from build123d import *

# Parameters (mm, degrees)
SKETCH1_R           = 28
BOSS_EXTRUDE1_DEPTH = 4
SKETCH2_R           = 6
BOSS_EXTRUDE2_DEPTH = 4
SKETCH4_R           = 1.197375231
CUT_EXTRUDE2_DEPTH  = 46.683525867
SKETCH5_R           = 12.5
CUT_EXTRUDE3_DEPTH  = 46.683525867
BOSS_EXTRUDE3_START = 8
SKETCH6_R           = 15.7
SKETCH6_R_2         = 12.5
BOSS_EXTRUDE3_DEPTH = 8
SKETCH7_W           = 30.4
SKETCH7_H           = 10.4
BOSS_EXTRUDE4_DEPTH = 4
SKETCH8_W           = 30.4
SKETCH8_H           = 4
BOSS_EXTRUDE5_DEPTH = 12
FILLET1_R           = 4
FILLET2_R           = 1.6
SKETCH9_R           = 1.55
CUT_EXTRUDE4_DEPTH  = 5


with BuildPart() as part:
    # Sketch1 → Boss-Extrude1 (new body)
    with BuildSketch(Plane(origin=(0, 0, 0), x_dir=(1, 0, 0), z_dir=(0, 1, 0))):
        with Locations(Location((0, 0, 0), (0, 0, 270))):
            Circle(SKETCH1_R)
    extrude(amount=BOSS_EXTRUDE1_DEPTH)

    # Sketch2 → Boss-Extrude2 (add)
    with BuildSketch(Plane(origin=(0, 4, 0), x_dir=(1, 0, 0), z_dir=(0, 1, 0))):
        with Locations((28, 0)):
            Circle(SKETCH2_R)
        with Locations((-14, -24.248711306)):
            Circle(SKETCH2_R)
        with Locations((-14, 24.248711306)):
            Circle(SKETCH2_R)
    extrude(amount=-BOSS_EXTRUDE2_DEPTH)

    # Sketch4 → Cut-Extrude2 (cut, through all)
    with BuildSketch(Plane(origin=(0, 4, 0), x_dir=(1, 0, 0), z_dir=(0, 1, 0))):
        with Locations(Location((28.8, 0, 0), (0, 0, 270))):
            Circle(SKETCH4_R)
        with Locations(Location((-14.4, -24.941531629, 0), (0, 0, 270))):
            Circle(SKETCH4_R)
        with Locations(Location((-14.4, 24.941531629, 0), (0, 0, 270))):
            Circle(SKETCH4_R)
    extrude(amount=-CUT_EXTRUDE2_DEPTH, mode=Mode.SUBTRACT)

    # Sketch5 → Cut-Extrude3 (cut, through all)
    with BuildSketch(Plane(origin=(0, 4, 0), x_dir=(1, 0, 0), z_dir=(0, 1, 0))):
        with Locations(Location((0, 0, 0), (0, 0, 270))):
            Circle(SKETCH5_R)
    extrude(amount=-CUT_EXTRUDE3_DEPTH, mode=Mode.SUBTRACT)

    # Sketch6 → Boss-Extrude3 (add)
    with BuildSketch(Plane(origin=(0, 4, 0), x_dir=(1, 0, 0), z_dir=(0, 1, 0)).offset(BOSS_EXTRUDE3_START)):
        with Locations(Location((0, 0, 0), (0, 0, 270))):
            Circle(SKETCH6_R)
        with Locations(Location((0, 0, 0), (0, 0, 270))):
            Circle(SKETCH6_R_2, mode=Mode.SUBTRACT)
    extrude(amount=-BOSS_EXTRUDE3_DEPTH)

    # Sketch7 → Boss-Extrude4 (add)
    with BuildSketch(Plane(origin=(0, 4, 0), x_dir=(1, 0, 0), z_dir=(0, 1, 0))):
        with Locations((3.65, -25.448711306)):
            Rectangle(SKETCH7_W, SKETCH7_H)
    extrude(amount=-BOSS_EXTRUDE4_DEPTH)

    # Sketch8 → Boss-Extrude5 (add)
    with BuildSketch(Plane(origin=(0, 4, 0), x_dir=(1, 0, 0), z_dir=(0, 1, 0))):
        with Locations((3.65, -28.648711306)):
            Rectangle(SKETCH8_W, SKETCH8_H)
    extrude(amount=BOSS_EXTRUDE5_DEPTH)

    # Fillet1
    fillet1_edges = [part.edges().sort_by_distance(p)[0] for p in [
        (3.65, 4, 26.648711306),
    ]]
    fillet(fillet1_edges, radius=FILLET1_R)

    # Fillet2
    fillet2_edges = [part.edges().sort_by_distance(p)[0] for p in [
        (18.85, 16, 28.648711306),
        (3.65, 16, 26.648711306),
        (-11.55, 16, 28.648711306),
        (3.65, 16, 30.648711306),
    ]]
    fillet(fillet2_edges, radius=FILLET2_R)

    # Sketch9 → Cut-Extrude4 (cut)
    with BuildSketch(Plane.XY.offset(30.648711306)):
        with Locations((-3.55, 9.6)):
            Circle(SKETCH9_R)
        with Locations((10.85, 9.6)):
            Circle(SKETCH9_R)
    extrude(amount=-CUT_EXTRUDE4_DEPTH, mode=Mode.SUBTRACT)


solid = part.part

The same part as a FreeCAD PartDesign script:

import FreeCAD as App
import Part
import Sketcher


def edges_at(feature, points):
    """Names of the edges that pass closest to the given points."""
    edges = feature.Shape.Edges
    near = lambda p: min(range(len(edges)), key=lambda i: edges[i].distToShape(Part.Vertex(*p))[0])
    return sorted({f"Edge{near(p) + 1}" for p in points})

doc = App.newDocument("Part")
body = doc.addObject("PartDesign::Body", "Body")

sketch1 = doc.addObject("Sketcher::SketchObject", "Sketch")
body.addObject(sketch1)
sketch1.AttachmentSupport = (doc.XZ_Plane, [""])
sketch1.MapMode = "FlatFace"
sketch1.addGeometry(Part.Circle(App.Vector(0, 0, 0), App.Vector(0, 0, 1), 28), False)
sketch1.addConstraint([
    Sketcher.Constraint("Coincident", 0, 3, -1, 1),
    Sketcher.Constraint("Diameter", 0, 56.0),
])
pad1 = doc.addObject("PartDesign::Pad", "Pad")
body.addObject(pad1)
pad1.Profile = sketch1
pad1.Length = 4
pad1.Reversed = True

sketch2 = doc.addObject("Sketcher::SketchObject", "Sketch001")
body.addObject(sketch2)
sketch2.AttachmentSupport = (doc.XZ_Plane, [""])
sketch2.MapMode = "FlatFace"
sketch2.AttachmentOffset = App.Placement(App.Vector(0, 0, -4), App.Rotation())
sketch2.addGeometry([
    Part.Circle(App.Vector(28, 0, 0), App.Vector(0, 0, 1), 6),
    Part.Circle(App.Vector(-14, 24, 0), App.Vector(0, 0, 1), 6),
    Part.Circle(App.Vector(-14, -24, 0), App.Vector(0, 0, 1), 6),
], False)
sketch2.addConstraint([
    Sketcher.Constraint("Equal", 0, 1),
    Sketcher.Constraint("Equal", 1, 2),
    Sketcher.Constraint("Symmetric", 1, 3, 2, 3, -1),
    Sketcher.Constraint("PointOnObject", 0, 3, -1),
    Sketcher.Constraint("Diameter", 0, 12.0),
    Sketcher.Constraint("DistanceX", -1, 1, 0, 3, 28.0),
    Sketcher.Constraint("DistanceX", 1, 3, -1, 1, 14.0),
    Sketcher.Constraint("DistanceY", -1, 1, 1, 3, 24.248711),
])
pad2 = doc.addObject("PartDesign::Pad", "Pad001")
body.addObject(pad2)
pad2.Profile = sketch2
pad2.Length = 4

sketch3 = doc.addObject("Sketcher::SketchObject", "Sketch002")
body.addObject(sketch3)
sketch3.AttachmentSupport = (doc.XZ_Plane, [""])
sketch3.MapMode = "FlatFace"
sketch3.AttachmentOffset = App.Placement(App.Vector(0, 0, -4), App.Rotation())
sketch3.addGeometry([
    Part.Circle(App.Vector(28.8, 0, 0), App.Vector(0, 0, 1), 1.2),
    Part.Circle(App.Vector(-14.4, 24.9, 0), App.Vector(0, 0, 1), 1.2),
    Part.Circle(App.Vector(-14.4, -24.9, 0), App.Vector(0, 0, 1), 1.2),
], False)
sketch3.addConstraint([
    Sketcher.Constraint("Equal", 0, 1),
    Sketcher.Constraint("Equal", 1, 2),
    Sketcher.Constraint("Symmetric", 1, 3, 2, 3, -1),
    Sketcher.Constraint("PointOnObject", 0, 3, -1),
    Sketcher.Constraint("DistanceX", -1, 1, 0, 3, 28.8),
    Sketcher.Constraint("DistanceX", 1, 3, -1, 1, 14.4),
    Sketcher.Constraint("Diameter", 0, 2.39475),
    Sketcher.Constraint("DistanceY", -1, 1, 1, 3, 24.941532),
])
pocket1 = doc.addObject("PartDesign::Pocket", "Pocket")
body.addObject(pocket1)
pocket1.Profile = sketch3
pocket1.Type = "ThroughAll"
pocket1.Reversed = True

sketch4 = doc.addObject("Sketcher::SketchObject", "Sketch003")
body.addObject(sketch4)
sketch4.AttachmentSupport = (doc.XZ_Plane, [""])
sketch4.MapMode = "FlatFace"
sketch4.AttachmentOffset = App.Placement(App.Vector(0, 0, -4), App.Rotation())
sketch4.addGeometry(Part.Circle(App.Vector(0, 0, 0), App.Vector(0, 0, 1), 12), False)
sketch4.addConstraint([
    Sketcher.Constraint("Coincident", 0, 3, -1, 1),
    Sketcher.Constraint("Diameter", 0, 25.0),
])
pocket2 = doc.addObject("PartDesign::Pocket", "Pocket001")
body.addObject(pocket2)
pocket2.Profile = sketch4
pocket2.Type = "ThroughAll"
pocket2.Reversed = True

sketch5 = doc.addObject("Sketcher::SketchObject", "Sketch004")
body.addObject(sketch5)
sketch5.AttachmentSupport = (doc.XZ_Plane, [""])
sketch5.MapMode = "FlatFace"
sketch5.AttachmentOffset = App.Placement(App.Vector(0, 0, -12), App.Rotation())
sketch5.addGeometry([
    Part.Circle(App.Vector(0, 0, 0), App.Vector(0, 0, 1), 16),
    Part.Circle(App.Vector(0, 0, 0), App.Vector(0, 0, 1), 12),
], False)
sketch5.addConstraint([
    Sketcher.Constraint("Coincident", 0, 3, -1, 1),
    Sketcher.Constraint("Coincident", 1, 3, -1, 1),
    Sketcher.Constraint("Diameter", 1, 25.0),
    Sketcher.Constraint("Diameter", 0, 31.4),
])
pad3 = doc.addObject("PartDesign::Pad", "Pad002")
body.addObject(pad3)
pad3.Profile = sketch5
pad3.Length = 8

sketch6 = doc.addObject("Sketcher::SketchObject", "Sketch005")
body.addObject(sketch6)
sketch6.AttachmentSupport = (doc.XZ_Plane, [""])
sketch6.MapMode = "FlatFace"
sketch6.AttachmentOffset = App.Placement(App.Vector(0, 0, -4), App.Rotation())
sketch6.addGeometry([
    Part.LineSegment(App.Vector(-12, 20, 0), App.Vector(-12, 31, 0)),
    Part.LineSegment(App.Vector(-12, 31, 0), App.Vector(19, 31, 0)),
    Part.LineSegment(App.Vector(19, 31, 0), App.Vector(19, 20, 0)),
    Part.LineSegment(App.Vector(19, 20, 0), App.Vector(-12, 20, 0)),
], False)
sketch6.addConstraint([
    Sketcher.Constraint("Coincident", 0, 2, 1, 1),
    Sketcher.Constraint("Coincident", 1, 2, 2, 1),
    Sketcher.Constraint("Coincident", 2, 2, 3, 1),
    Sketcher.Constraint("Coincident", 3, 2, 0, 1),
    Sketcher.Constraint("Vertical", 0),
    Sketcher.Constraint("Horizontal", 1),
    Sketcher.Constraint("Vertical", 2),
    Sketcher.Constraint("Horizontal", 3),
    Sketcher.Constraint("DistanceX", 1, 1, 1, 2, 30.4),
    Sketcher.Constraint("DistanceY", 0, 1, 0, 2, 10.4),
    Sketcher.Constraint("DistanceX", 0, 2, -1, 1, 11.55),
    Sketcher.Constraint("DistanceY", -1, 1, 0, 2, 30.648711),
])
pad4 = doc.addObject("PartDesign::Pad", "Pad003")
body.addObject(pad4)
pad4.Profile = sketch6
pad4.Length = 4

sketch7 = doc.addObject("Sketcher::SketchObject", "Sketch006")
body.addObject(sketch7)
sketch7.AttachmentSupport = (doc.XZ_Plane, [""])
sketch7.MapMode = "FlatFace"
sketch7.AttachmentOffset = App.Placement(App.Vector(0, 0, -4), App.Rotation())
sketch7.addGeometry([
    Part.LineSegment(App.Vector(-11.6, 26.6, 0), App.Vector(-11.6, 30.6, 0)),
    Part.LineSegment(App.Vector(-11.6, 30.6, 0), App.Vector(18.9, 30.6, 0)),
    Part.LineSegment(App.Vector(18.9, 30.6, 0), App.Vector(18.9, 26.6, 0)),
    Part.LineSegment(App.Vector(18.9, 26.6, 0), App.Vector(-11.6, 26.6, 0)),
], False)
sketch7.addConstraint([
    Sketcher.Constraint("Coincident", 0, 2, 1, 1),
    Sketcher.Constraint("Coincident", 1, 2, 2, 1),
    Sketcher.Constraint("Coincident", 2, 2, 3, 1),
    Sketcher.Constraint("Coincident", 3, 2, 0, 1),
    Sketcher.Constraint("Vertical", 0),
    Sketcher.Constraint("Horizontal", 1),
    Sketcher.Constraint("Vertical", 2),
    Sketcher.Constraint("Horizontal", 3),
    Sketcher.Constraint("DistanceY", 0, 1, 0, 2, 4.0),
    Sketcher.Constraint("DistanceX", 1, 1, 1, 2, 30.4),
    Sketcher.Constraint("DistanceX", 0, 2, -1, 1, 11.55),
    Sketcher.Constraint("DistanceY", -1, 1, 0, 2, 30.648711),
])
pad5 = doc.addObject("PartDesign::Pad", "Pad004")
body.addObject(pad5)
pad5.Profile = sketch7
pad5.Length = 12
pad5.Reversed = True
doc.recompute()

fillet = doc.addObject("PartDesign::Fillet", "Fillet")
body.addObject(fillet)
fillet.Base = (pad5, edges_at(pad5, [(3.65, 4, 26.649)]))
fillet.Radius = 4
doc.recompute()

fillet2 = doc.addObject("PartDesign::Fillet", "Fillet001")
body.addObject(fillet2)
fillet2.Base = (fillet, edges_at(fillet, [
    (18.85, 16, 28.649),
    (3.65, 16, 26.649),
    (-11.55, 16, 28.649),
    (3.65, 16, 30.649),
]))
fillet2.Radius = 1.6

sketch8 = doc.addObject("Sketcher::SketchObject", "Sketch007")
body.addObject(sketch8)
sketch8.AttachmentSupport = (doc.XY_Plane, [""])
sketch8.MapMode = "FlatFace"
sketch8.AttachmentOffset = App.Placement(App.Vector(0, 0, 30.648711), App.Rotation())
sketch8.addGeometry([
    Part.Circle(App.Vector(-3.5, 9.6, 0), App.Vector(0, 0, 1), 1.6),
    Part.Circle(App.Vector(10.8, 9.6, 0), App.Vector(0, 0, 1), 1.6),
], False)
sketch8.addConstraint([
    Sketcher.Constraint("Equal", 0, 1),
    Sketcher.Constraint("Horizontal", 0, 3, 1, 3),
    Sketcher.Constraint("Diameter", 0, 3.1),
    Sketcher.Constraint("DistanceY", -1, 1, 0, 3, 9.6),
    Sketcher.Constraint("DistanceX", 0, 3, 1, 3, 14.4),
    Sketcher.Constraint("DistanceX", 0, 3, -1, 1, 3.55),
])
pocket3 = doc.addObject("PartDesign::Pocket", "Pocket002")
body.addObject(pocket3)
pocket3.Profile = sketch8
pocket3.Length = 5

doc.recompute()
